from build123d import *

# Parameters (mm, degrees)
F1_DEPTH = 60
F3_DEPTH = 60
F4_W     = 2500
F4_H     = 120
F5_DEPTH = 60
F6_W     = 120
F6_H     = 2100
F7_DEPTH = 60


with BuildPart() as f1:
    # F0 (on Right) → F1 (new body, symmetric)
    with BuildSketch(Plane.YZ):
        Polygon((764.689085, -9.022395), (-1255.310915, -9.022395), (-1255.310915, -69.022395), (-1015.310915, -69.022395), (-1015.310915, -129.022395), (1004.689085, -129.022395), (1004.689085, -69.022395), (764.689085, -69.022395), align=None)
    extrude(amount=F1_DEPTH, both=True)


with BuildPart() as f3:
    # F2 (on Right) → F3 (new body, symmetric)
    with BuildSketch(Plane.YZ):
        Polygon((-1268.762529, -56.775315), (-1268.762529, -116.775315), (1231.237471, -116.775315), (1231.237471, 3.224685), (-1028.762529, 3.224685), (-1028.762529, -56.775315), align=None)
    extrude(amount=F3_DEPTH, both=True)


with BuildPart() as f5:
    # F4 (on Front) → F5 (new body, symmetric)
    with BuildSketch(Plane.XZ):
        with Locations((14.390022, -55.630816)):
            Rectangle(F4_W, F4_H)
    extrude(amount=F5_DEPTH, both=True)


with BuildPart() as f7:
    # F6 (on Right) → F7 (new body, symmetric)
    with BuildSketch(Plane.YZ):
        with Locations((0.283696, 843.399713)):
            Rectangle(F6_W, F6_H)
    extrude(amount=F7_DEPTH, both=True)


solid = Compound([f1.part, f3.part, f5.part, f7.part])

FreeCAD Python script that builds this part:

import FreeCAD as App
import Part
import Sketcher

doc = App.newDocument("Part")
body = doc.addObject("PartDesign::Body", "Body")

# Sketch on YZ plane
sketch1 = body.newObject("Sketcher::SketchObject", "Sketch")
sketch1.AttachmentSupport = (doc.getObject("YZ_Plane"), [""])
sketch1.MapMode = "FlatFace"
sketch1.addGeometry([
    Part.LineSegment(App.Vector(765, -9, 0), App.Vector(-1255, -9, 0)),  # 0
    Part.LineSegment(App.Vector(-1255, -9, 0), App.Vector(-1255, -69, 0)),  # 1
    Part.LineSegment(App.Vector(-1255, -69, 0), App.Vector(-1015, -69, 0)),  # 2
    Part.LineSegment(App.Vector(-1015, -69, 0), App.Vector(-1015, -129, 0)),  # 3
    Part.LineSegment(App.Vector(-1015, -129, 0), App.Vector(1005, -129, 0)),  # 4
    Part.LineSegment(App.Vector(1005, -129, 0), App.Vector(1005, -69, 0)),  # 5
    Part.LineSegment(App.Vector(1005, -69, 0), App.Vector(765, -69, 0)),  # 6
    Part.LineSegment(App.Vector(765, -69, 0), App.Vector(765, -9, 0)),  # 7
], False)
sketch1.addConstraint([
    Sketcher.Constraint("Coincident", 0, 2, 1, 1),
    Sketcher.Constraint("Coincident", 1, 2, 2, 1),
    Sketcher.Constraint("Coincident", 2, 2, 3, 1),
    Sketcher.Constraint("Coincident", 3, 2, 4, 1),
    Sketcher.Constraint("Coincident", 4, 2, 5, 1),
    Sketcher.Constraint("Coincident", 5, 2, 6, 1),
    Sketcher.Constraint("Coincident", 6, 2, 7, 1),
    Sketcher.Constraint("Coincident", 7, 2, 0, 1),
    Sketcher.Constraint("Horizontal", 0),
    Sketcher.Constraint("Vertical", 1),
    Sketcher.Constraint("Horizontal", 2),
    Sketcher.Constraint("Vertical", 3),
    Sketcher.Constraint("Horizontal", 4),
    Sketcher.Constraint("Vertical", 5),
    Sketcher.Constraint("Horizontal", 6),
    Sketcher.Constraint("Vertical", 7),
    Sketcher.Constraint("Horizontal", 2, 2, 5, 2),
    Sketcher.Constraint("Equal", 0, 4),
    Sketcher.Constraint("Equal", 1, 3),
    Sketcher.Constraint("DistanceX", 0, 2, 0, 1, 2020.0),
    Sketcher.Constraint("DistanceX", 2, 1, 2, 2, 240.0),
    Sketcher.Constraint("DistanceY", 1, 2, 1, 1, 60.0),
    Sketcher.Constraint("DistanceX", 0, 2, -1, 1, 1255.310915),
    Sketcher.Constraint("DistanceY", 0, 2, -1, 1, 9.022395),
])
pad1 = body.newObject("PartDesign::Pad", "Pad")
pad1.Profile = sketch1
pad1.Length = 120
pad1.Midplane = True
body2 = doc.addObject("PartDesign::Body", "Body001")

# Sketch on YZ plane
sketch2 = body2.newObject("Sketcher::SketchObject", "Sketch001")
sketch2.AttachmentSupport = (doc.getObject("YZ_Plane001"), [""])
sketch2.MapMode = "FlatFace"
sketch2.addGeometry([
    Part.LineSegment(App.Vector(-1269, -57, 0), App.Vector(-1269, -117, 0)),  # 0
    Part.LineSegment(App.Vector(-1269, -117, 0), App.Vector(1231, -117, 0)),  # 1
    Part.LineSegment(App.Vector(1231, -117, 0), App.Vector(1231, 3, 0)),  # 2
    Part.LineSegment(App.Vector(1231, 3, 0), App.Vector(-1029, 3, 0)),  # 3
    Part.LineSegment(App.Vector(-1029, 3, 0), App.Vector(-1029, -57, 0)),  # 4
    Part.LineSegment(App.Vector(-1029, -57, 0), App.Vector(-1269, -57, 0)),  # 5
], False)
sketch2.addConstraint([
    Sketcher.Constraint("Coincident", 0, 2, 1, 1),
    Sketcher.Constraint("Coincident", 1, 2, 2, 1),
    Sketcher.Constraint("Coincident", 2, 2, 3, 1),
    Sketcher.Constraint("Coincident", 3, 2, 4, 1),
    Sketcher.Constraint("Coincident", 4, 2, 5, 1),
    Sketcher.Constraint("Coincident", 5, 2, 0, 1),
    Sketcher.Constraint("Vertical", 0),
    Sketcher.Constraint("Horizontal", 1),
    Sketcher.Constraint("Vertical", 2),
    Sketcher.Constraint("Horizontal", 3),
    Sketcher.Constraint("Vertical", 4),
    Sketcher.Constraint("Horizontal", 5),
    Sketcher.Constraint("Equal", 0, 4),
    Sketcher.Constraint("DistanceX", 1, 1, 1, 2, 2500.0),
    Sketcher.Constraint("DistanceX", 3, 2, 3, 1, 2260.0),
    Sketcher.Constraint("DistanceY", 0, 2, 0, 1, 60.0),
    Sketcher.Constraint("DistanceX", 0, 2, -1, 1, 1268.762529),
    Sketcher.Constraint("DistanceY", 0, 2, -1, 1, 116.775315),
])
pad2 = body2.newObject("PartDesign::Pad", "Pad001")
pad2.Profile = sketch2
pad2.Length = 120
pad2.Midplane = True
body3 = doc.addObject("PartDesign::Body", "Body002")

# Sketch on XZ plane
sketch3 = body3.newObject("Sketcher::SketchObject", "Sketch002")
sketch3.AttachmentSupport = (doc.getObject("XZ_Plane002"), [""])
sketch3.MapMode = "FlatFace"
sketch3.addGeometry([
    Part.LineSegment(App.Vector(-1236, 4, 0), App.Vector(-1236, -116, 0)),
    Part.LineSegment(App.Vector(-1236, -116, 0), App.Vector(1264, -116, 0)),
    Part.LineSegment(App.Vector(1264, -116, 0), App.Vector(1264, 4, 0)),
    Part.LineSegment(App.Vector(1264, 4, 0), App.Vector(-1236, 4, 0)),
], False)
sketch3.addConstraint([
    Sketcher.Constraint("Coincident", 0, 2, 1, 1),
    Sketcher.Constraint("Coincident", 1, 2, 2, 1),
    Sketcher.Constraint("Coincident", 2, 2, 3, 1),
    Sketcher.Constraint("Coincident", 3, 2, 0, 1),
    Sketcher.Constraint("Vertical", 0),
    Sketcher.Constraint("Horizontal", 1),
    Sketcher.Constraint("Vertical", 2),
    Sketcher.Constraint("Horizontal", 3),
    Sketcher.Constraint("DistanceX", 1, 1, 1, 2, 2500.0),
    Sketcher.Constraint("DistanceY", 0, 2, 0, 1, 120.0),
    Sketcher.Constraint("DistanceX", 0, 2, -1, 1, 1235.609978),
    Sketcher.Constraint("DistanceY", 0, 2, -1, 1, 115.630816),
])
pad3 = body3.newObject("PartDesign::Pad", "Pad002")
pad3.Profile = sketch3
pad3.Length = 120
pad3.Midplane = True
body4 = doc.addObject("PartDesign::Body", "Body003")

# Sketch on YZ plane
sketch4 = body4.newObject("Sketcher::SketchObject", "Sketch003")
sketch4.AttachmentSupport = (doc.getObject("YZ_Plane003"), [""])
sketch4.MapMode = "FlatFace"
sketch4.addGeometry([
    Part.LineSegment(App.Vector(-60, 1893, 0), App.Vector(-60, -207, 0)),
    Part.LineSegment(App.Vector(-60, -207, 0), App.Vector(60, -207, 0)),
    Part.LineSegment(App.Vector(60, -207, 0), App.Vector(60, 1893, 0)),
    Part.LineSegment(App.Vector(60, 1893, 0), App.Vector(-60, 1893, 0)),
], False)
sketch4.addConstraint([
    Sketcher.Constraint("Coincident", 0, 2, 1, 1),
    Sketcher.Constraint("Coincident", 1, 2, 2, 1),
    Sketcher.Constraint("Coincident", 2, 2, 3, 1),
    Sketcher.Constraint("Coincident", 3, 2, 0, 1),
    Sketcher.Constraint("Vertical", 0),
    Sketcher.Constraint("Horizontal", 1),
    Sketcher.Constraint("Vertical", 2),
    Sketcher.Constraint("Horizontal", 3),
    Sketcher.Constraint("DistanceX", 1, 1, 1, 2, 120.0),
    Sketcher.Constraint("DistanceY", 0, 2, 0, 1, 2100.0),
    Sketcher.Constraint("DistanceX", 0, 2, -1, 1, 59.716304),
    Sketcher.Constraint("DistanceY", 0, 2, -1, 1, 206.600287),
])
pad4 = body4.newObject("PartDesign::Pad", "Pad003")
pad4.Profile = sketch4
pad4.Length = 120
pad4.Midplane = True

doc.recompute()
